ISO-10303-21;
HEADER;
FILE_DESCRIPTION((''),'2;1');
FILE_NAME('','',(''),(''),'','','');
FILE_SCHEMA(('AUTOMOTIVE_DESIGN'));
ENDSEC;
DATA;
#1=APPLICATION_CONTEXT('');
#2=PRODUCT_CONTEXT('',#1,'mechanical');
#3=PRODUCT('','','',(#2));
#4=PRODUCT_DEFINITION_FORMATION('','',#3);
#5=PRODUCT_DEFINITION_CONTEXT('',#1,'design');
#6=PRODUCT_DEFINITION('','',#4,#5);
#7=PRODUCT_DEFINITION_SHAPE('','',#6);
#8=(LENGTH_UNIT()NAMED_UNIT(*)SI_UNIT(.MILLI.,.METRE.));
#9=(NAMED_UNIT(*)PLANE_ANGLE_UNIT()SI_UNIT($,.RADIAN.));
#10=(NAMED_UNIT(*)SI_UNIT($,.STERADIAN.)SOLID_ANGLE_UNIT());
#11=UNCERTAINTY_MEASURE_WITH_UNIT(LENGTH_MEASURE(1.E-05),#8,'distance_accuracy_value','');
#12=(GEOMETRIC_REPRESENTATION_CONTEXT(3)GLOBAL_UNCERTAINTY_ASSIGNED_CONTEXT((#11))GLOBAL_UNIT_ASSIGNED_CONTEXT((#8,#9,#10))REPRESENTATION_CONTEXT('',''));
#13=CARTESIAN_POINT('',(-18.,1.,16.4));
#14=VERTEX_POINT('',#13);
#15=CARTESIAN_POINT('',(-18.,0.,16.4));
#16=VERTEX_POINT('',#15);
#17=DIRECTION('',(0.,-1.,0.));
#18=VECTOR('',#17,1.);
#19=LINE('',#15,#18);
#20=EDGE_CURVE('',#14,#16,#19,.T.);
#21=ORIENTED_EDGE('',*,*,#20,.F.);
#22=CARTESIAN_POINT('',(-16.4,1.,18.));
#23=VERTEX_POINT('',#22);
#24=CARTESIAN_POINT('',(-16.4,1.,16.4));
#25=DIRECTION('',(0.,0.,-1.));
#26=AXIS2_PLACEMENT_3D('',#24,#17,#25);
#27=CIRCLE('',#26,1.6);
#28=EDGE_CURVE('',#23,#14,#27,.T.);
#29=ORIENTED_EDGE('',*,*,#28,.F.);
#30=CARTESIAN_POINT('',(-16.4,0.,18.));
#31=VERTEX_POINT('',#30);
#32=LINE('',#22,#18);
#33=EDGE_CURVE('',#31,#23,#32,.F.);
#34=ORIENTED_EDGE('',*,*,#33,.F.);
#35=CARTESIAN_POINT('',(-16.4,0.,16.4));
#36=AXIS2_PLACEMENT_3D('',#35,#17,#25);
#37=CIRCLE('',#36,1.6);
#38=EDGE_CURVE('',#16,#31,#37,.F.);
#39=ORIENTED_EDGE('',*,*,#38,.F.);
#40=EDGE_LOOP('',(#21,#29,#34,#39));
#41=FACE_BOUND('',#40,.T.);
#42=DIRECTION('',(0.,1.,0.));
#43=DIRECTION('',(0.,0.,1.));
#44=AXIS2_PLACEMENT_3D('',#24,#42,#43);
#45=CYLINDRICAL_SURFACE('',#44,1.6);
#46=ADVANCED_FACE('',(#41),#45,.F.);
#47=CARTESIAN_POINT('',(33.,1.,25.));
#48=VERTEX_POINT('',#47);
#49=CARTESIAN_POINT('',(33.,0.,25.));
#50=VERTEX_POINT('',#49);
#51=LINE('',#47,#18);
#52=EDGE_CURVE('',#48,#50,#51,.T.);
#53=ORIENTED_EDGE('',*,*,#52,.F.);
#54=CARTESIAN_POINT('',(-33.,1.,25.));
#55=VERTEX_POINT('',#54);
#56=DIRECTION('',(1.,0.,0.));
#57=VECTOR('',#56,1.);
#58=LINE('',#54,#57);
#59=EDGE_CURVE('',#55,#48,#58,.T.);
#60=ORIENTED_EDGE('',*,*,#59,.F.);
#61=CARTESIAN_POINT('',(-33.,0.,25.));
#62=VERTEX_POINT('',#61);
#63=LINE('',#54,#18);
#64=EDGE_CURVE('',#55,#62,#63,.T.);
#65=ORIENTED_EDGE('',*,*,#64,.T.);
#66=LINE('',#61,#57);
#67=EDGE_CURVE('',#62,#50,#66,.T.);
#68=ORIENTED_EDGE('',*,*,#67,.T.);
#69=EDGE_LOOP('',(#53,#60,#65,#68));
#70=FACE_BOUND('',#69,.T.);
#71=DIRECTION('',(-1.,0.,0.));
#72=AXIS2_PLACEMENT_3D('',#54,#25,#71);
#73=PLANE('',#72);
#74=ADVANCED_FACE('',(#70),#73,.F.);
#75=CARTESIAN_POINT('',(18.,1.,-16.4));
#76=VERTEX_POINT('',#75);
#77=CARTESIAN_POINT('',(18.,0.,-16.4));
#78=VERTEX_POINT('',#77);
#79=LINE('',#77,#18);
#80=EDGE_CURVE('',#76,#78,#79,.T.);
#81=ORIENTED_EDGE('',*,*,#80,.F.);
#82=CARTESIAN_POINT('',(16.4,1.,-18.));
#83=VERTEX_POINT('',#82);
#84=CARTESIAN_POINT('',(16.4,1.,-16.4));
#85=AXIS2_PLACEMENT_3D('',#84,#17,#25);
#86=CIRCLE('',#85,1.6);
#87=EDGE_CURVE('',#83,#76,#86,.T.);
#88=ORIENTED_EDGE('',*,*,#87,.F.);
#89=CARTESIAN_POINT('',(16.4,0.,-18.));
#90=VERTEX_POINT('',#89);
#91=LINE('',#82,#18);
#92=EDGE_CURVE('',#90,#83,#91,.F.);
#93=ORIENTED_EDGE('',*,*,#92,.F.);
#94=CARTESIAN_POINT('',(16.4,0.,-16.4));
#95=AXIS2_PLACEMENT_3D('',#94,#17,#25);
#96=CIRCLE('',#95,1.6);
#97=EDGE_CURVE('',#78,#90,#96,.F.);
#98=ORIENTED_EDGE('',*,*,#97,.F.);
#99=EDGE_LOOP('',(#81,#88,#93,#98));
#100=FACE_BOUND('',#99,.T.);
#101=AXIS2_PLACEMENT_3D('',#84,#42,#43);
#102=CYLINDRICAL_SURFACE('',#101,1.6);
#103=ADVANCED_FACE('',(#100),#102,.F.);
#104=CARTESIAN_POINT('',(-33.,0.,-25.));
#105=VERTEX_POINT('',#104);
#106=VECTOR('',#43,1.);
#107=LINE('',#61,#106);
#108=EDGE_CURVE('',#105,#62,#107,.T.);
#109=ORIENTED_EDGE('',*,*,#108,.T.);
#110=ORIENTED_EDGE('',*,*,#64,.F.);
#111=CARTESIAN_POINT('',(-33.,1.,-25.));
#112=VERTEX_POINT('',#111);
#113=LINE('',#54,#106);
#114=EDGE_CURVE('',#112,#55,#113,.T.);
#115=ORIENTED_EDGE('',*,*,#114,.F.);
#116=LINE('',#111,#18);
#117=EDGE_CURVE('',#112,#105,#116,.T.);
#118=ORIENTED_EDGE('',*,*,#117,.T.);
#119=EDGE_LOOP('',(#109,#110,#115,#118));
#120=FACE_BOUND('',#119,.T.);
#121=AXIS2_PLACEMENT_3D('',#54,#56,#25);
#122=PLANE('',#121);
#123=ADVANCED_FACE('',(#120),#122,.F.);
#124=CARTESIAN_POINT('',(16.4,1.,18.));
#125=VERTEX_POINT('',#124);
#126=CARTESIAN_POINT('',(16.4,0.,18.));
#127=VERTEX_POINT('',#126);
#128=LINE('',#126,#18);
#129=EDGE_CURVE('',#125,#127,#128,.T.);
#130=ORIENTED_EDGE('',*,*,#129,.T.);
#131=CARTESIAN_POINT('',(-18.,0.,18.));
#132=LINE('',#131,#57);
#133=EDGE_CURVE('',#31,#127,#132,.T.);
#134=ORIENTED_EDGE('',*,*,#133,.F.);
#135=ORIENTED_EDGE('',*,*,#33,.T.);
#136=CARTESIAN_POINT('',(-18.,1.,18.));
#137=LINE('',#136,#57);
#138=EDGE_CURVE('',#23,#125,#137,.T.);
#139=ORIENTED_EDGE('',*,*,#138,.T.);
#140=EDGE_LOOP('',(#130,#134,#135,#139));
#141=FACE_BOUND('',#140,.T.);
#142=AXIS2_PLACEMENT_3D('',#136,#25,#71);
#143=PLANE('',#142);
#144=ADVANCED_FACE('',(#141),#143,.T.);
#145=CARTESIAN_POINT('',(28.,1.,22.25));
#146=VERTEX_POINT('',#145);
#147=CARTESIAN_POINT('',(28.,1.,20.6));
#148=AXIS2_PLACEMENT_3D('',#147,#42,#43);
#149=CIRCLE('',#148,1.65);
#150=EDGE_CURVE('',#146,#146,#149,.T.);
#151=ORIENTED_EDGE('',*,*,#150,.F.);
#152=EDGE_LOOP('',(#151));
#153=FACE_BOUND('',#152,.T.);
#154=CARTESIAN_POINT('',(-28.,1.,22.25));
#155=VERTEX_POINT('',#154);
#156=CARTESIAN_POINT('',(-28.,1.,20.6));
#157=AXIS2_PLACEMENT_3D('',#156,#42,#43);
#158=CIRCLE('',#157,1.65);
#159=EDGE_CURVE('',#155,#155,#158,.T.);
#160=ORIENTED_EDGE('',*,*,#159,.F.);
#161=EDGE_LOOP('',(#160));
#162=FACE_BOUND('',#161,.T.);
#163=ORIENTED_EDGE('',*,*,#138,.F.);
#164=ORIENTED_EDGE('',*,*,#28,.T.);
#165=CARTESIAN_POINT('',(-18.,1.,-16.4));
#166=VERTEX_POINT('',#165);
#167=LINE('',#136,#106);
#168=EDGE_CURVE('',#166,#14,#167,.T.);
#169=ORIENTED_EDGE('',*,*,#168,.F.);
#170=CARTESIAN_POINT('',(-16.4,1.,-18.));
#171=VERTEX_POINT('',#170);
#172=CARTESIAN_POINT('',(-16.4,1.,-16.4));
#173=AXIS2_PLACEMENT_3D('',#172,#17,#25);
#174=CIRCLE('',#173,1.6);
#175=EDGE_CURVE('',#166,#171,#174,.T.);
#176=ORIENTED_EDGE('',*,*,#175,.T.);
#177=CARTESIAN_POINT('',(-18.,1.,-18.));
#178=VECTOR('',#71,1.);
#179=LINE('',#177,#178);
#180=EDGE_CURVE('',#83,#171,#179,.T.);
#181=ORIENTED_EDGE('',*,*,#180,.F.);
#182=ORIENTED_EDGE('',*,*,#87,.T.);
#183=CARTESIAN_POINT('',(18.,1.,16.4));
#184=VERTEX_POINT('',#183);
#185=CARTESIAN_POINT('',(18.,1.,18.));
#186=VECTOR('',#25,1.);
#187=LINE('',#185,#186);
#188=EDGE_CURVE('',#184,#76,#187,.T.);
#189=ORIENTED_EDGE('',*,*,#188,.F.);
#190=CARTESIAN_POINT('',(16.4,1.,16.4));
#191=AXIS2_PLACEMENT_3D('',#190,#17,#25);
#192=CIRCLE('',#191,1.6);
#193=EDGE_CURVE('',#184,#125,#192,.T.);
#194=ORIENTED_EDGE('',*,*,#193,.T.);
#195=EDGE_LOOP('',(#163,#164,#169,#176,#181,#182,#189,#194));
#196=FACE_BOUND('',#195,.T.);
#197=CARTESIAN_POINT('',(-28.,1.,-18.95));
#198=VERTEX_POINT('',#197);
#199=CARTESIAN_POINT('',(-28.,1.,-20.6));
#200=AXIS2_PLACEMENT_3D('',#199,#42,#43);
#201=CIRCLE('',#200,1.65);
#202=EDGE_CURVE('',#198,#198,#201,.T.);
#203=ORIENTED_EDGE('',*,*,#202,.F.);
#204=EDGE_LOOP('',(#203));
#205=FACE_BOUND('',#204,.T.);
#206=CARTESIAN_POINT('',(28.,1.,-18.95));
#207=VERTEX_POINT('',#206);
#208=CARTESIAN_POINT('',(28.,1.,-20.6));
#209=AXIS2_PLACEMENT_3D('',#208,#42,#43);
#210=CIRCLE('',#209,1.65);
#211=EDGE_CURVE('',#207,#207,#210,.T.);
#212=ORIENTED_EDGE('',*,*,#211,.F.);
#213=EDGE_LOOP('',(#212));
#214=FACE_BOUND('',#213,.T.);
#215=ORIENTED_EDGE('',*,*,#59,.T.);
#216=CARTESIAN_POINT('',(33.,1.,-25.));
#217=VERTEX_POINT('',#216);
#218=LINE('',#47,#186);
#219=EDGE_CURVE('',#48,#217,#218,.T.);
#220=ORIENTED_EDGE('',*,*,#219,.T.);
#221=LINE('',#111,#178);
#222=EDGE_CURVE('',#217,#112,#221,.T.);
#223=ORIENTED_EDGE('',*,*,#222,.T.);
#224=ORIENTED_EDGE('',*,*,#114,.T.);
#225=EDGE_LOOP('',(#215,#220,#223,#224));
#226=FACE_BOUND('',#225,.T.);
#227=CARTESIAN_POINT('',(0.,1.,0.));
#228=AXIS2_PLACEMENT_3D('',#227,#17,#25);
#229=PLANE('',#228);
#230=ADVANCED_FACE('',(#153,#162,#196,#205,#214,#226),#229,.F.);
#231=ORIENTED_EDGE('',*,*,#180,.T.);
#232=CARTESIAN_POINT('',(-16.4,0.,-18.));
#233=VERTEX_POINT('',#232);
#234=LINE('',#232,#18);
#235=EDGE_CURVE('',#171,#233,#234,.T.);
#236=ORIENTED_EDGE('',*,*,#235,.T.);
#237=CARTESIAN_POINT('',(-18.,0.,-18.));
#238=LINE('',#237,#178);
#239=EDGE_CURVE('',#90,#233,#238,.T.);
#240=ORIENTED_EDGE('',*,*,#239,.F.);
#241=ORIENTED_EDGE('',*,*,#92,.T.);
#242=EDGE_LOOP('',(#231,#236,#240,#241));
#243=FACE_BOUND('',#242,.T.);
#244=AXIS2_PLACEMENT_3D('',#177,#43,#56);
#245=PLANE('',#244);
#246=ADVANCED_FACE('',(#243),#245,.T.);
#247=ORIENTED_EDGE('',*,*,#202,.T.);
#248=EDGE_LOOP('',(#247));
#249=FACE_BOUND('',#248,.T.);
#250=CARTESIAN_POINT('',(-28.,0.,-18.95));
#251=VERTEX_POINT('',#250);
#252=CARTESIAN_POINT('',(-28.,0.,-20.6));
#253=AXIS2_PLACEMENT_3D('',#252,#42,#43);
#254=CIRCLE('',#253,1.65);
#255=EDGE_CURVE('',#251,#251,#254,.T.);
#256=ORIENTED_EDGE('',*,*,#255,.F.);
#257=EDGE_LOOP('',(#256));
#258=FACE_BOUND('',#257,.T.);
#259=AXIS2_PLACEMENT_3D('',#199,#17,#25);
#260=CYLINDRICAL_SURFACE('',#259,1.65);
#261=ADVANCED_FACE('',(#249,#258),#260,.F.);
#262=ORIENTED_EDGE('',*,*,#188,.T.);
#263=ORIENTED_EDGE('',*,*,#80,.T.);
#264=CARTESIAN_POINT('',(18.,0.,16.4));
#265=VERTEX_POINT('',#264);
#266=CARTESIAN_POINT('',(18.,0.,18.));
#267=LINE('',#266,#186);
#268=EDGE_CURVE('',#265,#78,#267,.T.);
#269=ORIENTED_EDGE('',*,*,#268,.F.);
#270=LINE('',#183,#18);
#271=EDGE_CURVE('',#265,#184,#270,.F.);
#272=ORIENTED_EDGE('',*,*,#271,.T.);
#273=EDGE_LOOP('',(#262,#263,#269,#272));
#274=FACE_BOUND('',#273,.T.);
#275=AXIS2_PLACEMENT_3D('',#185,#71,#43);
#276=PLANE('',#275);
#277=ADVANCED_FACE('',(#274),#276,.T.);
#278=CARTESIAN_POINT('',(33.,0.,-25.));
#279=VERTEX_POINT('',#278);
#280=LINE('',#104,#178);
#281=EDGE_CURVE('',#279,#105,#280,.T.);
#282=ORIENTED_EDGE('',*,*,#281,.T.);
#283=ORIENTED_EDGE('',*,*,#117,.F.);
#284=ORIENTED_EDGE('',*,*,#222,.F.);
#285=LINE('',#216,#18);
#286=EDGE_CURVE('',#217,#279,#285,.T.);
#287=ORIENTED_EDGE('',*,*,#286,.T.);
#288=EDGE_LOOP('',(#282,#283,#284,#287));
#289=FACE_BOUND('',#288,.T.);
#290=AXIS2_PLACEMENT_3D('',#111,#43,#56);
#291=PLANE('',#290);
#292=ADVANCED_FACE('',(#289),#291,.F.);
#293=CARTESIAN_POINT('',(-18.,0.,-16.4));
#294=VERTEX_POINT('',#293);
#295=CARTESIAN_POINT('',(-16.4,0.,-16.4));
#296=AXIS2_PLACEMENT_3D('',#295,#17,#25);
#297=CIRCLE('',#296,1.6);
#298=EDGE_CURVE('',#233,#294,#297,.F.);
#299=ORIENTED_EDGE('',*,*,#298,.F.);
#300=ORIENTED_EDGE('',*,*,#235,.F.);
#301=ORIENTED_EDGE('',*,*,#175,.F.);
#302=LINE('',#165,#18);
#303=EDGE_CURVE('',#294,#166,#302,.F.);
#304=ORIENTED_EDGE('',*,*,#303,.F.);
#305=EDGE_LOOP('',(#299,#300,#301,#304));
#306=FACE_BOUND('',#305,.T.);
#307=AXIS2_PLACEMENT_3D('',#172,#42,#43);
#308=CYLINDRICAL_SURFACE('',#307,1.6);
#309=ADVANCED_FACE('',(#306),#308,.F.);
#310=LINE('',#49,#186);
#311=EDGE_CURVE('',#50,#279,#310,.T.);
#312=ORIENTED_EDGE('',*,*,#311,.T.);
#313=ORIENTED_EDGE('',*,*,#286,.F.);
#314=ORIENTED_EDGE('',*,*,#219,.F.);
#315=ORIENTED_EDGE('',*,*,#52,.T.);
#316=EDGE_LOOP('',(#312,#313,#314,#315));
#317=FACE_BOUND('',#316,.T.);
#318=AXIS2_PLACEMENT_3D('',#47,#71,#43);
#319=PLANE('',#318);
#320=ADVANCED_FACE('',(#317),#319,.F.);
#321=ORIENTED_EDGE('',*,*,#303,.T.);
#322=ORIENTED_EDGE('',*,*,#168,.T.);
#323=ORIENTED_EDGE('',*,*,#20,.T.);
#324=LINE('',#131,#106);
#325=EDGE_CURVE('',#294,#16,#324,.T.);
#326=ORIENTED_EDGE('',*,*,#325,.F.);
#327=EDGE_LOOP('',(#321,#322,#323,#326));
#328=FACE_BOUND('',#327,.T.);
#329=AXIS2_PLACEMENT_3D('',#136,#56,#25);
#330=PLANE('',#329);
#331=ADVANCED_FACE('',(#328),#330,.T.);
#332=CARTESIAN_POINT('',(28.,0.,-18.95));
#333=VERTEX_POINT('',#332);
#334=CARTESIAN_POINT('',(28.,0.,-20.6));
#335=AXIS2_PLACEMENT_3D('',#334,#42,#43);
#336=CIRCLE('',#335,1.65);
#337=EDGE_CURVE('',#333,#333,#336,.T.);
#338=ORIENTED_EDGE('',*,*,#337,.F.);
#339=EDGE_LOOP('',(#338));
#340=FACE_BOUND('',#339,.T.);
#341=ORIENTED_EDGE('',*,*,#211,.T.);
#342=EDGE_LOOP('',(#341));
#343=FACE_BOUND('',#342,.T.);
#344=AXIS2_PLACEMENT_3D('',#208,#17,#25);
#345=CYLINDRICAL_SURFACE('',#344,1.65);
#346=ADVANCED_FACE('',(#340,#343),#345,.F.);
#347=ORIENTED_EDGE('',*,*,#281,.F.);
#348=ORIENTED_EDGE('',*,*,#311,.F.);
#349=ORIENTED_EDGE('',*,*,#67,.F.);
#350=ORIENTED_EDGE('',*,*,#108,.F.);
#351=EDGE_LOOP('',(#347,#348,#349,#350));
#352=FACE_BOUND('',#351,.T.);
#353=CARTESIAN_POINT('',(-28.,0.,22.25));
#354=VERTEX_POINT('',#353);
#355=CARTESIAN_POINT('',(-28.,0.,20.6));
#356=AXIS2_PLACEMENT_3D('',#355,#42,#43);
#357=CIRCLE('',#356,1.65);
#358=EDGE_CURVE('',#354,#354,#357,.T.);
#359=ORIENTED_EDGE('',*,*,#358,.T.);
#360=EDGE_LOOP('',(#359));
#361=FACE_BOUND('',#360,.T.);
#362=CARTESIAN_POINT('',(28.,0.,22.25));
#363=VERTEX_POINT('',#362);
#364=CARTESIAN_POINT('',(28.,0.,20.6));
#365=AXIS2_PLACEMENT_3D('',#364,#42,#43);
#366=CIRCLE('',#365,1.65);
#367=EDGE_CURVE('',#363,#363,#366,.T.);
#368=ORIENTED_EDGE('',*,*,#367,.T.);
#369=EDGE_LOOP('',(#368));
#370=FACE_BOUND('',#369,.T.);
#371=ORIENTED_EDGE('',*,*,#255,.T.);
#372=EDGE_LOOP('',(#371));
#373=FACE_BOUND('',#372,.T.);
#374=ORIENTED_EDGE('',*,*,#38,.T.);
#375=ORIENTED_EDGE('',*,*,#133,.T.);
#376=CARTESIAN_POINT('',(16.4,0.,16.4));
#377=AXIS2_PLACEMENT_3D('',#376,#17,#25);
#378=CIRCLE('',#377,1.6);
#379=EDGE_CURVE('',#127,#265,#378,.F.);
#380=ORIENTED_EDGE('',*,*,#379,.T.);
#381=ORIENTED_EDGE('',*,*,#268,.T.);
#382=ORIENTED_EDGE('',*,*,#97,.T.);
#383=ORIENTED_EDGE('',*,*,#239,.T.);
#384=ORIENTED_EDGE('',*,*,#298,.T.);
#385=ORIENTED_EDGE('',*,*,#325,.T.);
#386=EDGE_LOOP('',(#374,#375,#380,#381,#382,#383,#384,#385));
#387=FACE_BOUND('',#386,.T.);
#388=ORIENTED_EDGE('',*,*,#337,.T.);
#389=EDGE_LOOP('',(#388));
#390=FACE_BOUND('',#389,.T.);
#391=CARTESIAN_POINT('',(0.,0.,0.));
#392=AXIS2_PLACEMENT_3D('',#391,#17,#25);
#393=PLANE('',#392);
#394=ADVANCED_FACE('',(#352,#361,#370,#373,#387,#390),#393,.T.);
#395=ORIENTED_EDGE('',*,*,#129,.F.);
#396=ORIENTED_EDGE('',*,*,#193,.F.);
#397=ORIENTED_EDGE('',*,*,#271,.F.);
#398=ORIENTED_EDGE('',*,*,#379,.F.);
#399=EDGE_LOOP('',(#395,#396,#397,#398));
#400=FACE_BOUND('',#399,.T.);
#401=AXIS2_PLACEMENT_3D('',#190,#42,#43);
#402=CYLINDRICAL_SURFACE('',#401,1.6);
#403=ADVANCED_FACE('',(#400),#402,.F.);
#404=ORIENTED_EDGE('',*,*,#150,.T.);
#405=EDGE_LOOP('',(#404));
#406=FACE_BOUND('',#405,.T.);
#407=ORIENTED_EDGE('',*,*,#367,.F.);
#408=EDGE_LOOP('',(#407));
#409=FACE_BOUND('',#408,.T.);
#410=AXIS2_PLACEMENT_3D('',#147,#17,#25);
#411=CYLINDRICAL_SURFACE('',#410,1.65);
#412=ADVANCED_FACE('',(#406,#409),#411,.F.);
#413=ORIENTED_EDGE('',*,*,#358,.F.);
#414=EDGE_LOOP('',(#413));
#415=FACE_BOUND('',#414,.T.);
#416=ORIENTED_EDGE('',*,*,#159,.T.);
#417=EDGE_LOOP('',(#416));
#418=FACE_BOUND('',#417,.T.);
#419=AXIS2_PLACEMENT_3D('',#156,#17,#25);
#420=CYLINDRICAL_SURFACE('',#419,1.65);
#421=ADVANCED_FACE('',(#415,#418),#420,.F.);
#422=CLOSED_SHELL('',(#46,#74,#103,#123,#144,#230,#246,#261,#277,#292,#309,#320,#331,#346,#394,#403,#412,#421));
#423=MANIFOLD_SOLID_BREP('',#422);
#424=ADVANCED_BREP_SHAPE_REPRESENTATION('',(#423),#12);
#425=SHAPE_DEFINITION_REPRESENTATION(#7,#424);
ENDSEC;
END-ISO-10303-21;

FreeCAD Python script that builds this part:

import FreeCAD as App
import Part
import Sketcher
from FreeCAD import Vector


def edges_at(feature, points):
    """Names of the edges that pass closest to the given points."""
    edges = feature.Shape.Edges
    near = lambda p: min(range(len(edges)), key=lambda i: edges[i].distToShape(Part.Vertex(*p))[0])
    return sorted({f"Edge{near(p) + 1}" for p in points})


def add_polygon(sketch, points):
    """Adds a closed chain of lines whose ends are joined by coincident constraints."""
    first, n = sketch.GeometryCount, len(points)
    for a, b in zip(points, points[1:] + points[:1]):
        sketch.addGeometry(Part.LineSegment(App.Vector(*a, 0), App.Vector(*b, 0)), False)
    for i in range(n):
        sketch.addConstraint(Sketcher.Constraint("Coincident", first + i, 2, first + (i + 1) % n, 1))

doc = App.newDocument("Part")
body = doc.addObject("PartDesign::Body", "Body")

# Sketch on XZ plane
sketch1 = body.newObject("Sketcher::SketchObject", "Sketch")
sketch1.AttachmentSupport = (doc.getObject("XZ_Plane"), [""])
sketch1.MapMode = "FlatFace"
add_polygon(sketch1, [(-33, -25), (-33, 25), (33, 25), (33, -25)])  # lines 0-3
sketch1.addGeometry(Part.Circle(Vector(-28, 20.6, 0), Vector(0, 0, 1), 1.6), False)  # 4
sketch1.addGeometry(Part.Circle(Vector(28, 20.6, 0), Vector(0, 0, 1), 1.6), False)  # 5
add_polygon(sketch1, [(18, 18), (-18, 18), (-18, -18), (18, -18)])  # lines 6-9
sketch1.addGeometry(Part.Circle(Vector(-28, -20.6, 0), Vector(0, 0, 1), 1.6), False)  # 10
sketch1.addGeometry(Part.Circle(Vector(28, -20.6, 0), Vector(0, 0, 1), 1.6), False)  # 11
sketch1.addConstraint([
    Sketcher.Constraint("Vertical", 0),
    Sketcher.Constraint("Horizontal", 1),
    Sketcher.Constraint("Vertical", 2),
    Sketcher.Constraint("Horizontal", 3),
    Sketcher.Constraint("Horizontal", 6),
    Sketcher.Constraint("Vertical", 7),
    Sketcher.Constraint("Horizontal", 8),
    Sketcher.Constraint("Vertical", 9),
    Sketcher.Constraint("Equal", 4, 5),
    Sketcher.Constraint("Equal", 5, 10),
    Sketcher.Constraint("Equal", 10, 11),
    Sketcher.Constraint("Symmetric", 5, 3, 10, 3, -1, 1),
    Sketcher.Constraint("Symmetric", 4, 3, 11, 3, -1, 1),
    Sketcher.Constraint("Symmetric", 0, 2, 2, 2, -1, 1),
    Sketcher.Constraint("Symmetric", 6, 2, 8, 2, -1, 1),
    Sketcher.Constraint("Symmetric", 4, 3, 5, 3, -2),
    Sketcher.Constraint("Equal", 8, 7),
    Sketcher.Constraint("Diameter", 4, 3.3),
    Sketcher.Constraint("DistanceX", 1, 1, 1, 2, 66.0),
    Sketcher.Constraint("DistanceX", 6, 2, 6, 1, 36.0),
    Sketcher.Constraint("DistanceY", 0, 1, 0, 2, 50.0),
    Sketcher.Constraint("DistanceX", 4, 3, -1, 1, 28.0),
    Sketcher.Constraint("DistanceY", -1, 1, 4, 3, 20.6),
])
pad1 = body.newObject("PartDesign::Pad", "Pad")
pad1.Profile = sketch1
pad1.Length = 1
pad1.Reversed = True
doc.recompute()

fillet = body.newObject("PartDesign::Fillet", "Fillet")
fillet.Base = (pad1, edges_at(pad1, [
    (18, 0.5, 18),
    (18, 0.5, -18),
    (-18, 0.5, -18),
    (-18, 0.5, 18),
]))
fillet.Radius = 1.6

doc.recompute()
